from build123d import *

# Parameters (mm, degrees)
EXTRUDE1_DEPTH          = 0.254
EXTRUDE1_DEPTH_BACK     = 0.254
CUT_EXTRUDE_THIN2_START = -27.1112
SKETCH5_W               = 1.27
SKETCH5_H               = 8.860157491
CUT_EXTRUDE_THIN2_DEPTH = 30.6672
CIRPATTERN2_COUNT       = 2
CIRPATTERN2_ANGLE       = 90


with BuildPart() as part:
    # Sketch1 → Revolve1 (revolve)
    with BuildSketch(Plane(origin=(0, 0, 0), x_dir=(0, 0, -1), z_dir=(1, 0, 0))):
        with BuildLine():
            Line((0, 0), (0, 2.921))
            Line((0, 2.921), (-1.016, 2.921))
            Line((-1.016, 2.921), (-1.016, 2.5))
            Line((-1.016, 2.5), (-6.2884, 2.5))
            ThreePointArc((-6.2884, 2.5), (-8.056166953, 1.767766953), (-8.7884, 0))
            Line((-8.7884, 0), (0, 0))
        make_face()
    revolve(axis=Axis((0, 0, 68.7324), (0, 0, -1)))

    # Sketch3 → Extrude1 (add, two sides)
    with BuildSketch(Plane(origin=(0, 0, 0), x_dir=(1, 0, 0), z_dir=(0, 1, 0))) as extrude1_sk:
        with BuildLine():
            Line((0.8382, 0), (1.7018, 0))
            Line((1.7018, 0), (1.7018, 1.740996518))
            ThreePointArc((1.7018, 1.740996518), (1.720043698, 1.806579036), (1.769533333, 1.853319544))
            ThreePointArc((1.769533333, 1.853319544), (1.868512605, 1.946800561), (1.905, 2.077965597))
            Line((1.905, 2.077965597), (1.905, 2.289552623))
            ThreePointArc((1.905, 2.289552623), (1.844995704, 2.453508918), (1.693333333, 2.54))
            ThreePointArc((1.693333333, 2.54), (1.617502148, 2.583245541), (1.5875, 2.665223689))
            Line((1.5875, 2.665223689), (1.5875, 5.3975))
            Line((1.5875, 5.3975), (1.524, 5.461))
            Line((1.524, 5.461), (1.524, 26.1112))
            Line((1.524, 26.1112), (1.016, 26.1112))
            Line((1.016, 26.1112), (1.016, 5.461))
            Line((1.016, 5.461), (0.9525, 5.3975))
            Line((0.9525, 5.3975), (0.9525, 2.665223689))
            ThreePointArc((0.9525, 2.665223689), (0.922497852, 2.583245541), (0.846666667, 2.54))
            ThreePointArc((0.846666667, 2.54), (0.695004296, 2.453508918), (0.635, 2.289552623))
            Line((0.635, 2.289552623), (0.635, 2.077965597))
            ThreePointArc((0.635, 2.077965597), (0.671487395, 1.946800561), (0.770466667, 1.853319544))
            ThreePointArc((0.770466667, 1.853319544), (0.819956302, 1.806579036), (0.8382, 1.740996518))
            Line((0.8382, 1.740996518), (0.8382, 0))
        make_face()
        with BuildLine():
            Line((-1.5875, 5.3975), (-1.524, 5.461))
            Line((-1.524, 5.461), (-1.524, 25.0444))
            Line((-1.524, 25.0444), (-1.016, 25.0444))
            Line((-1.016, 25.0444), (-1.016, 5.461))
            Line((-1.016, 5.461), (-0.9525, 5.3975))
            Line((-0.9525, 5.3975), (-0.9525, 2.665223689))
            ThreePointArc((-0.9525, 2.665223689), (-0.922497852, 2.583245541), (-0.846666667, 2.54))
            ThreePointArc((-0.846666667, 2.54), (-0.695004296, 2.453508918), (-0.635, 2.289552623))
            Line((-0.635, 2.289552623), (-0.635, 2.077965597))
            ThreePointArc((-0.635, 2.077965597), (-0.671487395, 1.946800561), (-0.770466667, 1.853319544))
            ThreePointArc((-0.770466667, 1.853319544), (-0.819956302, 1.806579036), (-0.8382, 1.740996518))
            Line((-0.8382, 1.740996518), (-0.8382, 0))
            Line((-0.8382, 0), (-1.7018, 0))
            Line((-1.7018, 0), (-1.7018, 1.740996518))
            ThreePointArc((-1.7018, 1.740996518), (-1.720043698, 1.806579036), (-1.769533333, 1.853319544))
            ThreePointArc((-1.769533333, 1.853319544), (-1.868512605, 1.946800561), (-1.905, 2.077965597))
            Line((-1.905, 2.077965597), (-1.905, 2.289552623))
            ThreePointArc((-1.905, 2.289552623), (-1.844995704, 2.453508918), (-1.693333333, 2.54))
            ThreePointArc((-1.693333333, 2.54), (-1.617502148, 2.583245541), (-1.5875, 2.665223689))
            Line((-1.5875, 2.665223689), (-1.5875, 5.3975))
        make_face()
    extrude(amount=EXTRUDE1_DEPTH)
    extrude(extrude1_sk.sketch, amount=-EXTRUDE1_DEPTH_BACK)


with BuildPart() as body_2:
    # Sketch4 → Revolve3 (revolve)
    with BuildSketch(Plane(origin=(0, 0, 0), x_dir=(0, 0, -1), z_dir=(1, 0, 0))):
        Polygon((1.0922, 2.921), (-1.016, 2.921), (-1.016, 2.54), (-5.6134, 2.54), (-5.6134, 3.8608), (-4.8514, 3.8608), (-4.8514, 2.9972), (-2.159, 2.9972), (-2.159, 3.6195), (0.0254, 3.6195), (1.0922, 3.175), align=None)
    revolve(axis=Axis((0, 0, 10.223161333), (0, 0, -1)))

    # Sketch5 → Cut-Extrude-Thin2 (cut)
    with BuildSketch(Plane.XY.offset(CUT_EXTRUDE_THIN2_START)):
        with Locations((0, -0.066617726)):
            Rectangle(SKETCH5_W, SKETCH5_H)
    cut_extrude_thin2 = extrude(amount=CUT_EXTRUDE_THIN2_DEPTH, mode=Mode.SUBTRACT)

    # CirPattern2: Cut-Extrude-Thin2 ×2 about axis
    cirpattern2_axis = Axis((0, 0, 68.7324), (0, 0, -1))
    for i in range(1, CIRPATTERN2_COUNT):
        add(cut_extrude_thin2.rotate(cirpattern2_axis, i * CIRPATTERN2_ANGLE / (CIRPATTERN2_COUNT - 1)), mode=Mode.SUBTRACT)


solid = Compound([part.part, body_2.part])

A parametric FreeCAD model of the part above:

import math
import FreeCAD as App
import Part
import Sketcher

V = App.Vector
Q = App.Units.Quantity

doc = App.newDocument("Part")
body = doc.addObject("PartDesign::Body", "Body")

# Sketch on YZ plane
sketch1 = body.newObject("Sketcher::SketchObject", "Sketch")
sketch1.AttachmentSupport = (doc.getObject("YZ_Plane"), [""])
sketch1.MapMode = "FlatFace"
sketch1.addGeometry(Part.LineSegment(V(0, 0, 0), V(2.92, 0, 0)), False)
sketch1.addGeometry(Part.LineSegment(V(2.92, 0, 0), V(2.92, 1.02, 0)), False)
sketch1.addGeometry(Part.LineSegment(V(2.92, 1.02, 0), V(2.5, 1.02, 0)), False)
sketch1.addGeometry(Part.LineSegment(V(2.5, 1.02, 0), V(2.5, 6.29, 0)), False)
sketch1.addGeometry(Part.ArcOfCircle(Part.Circle(V(0, 6.29, 0), V(0, 0, 1), 2.5), math.radians(0), math.radians(90)), False)
sketch1.addGeometry(Part.LineSegment(V(0, 8.79, 0), V(0, 0, 0)), False)
sketch1.addConstraint(Sketcher.Constraint("Coincident", 0, 2, 1, 1))
sketch1.addConstraint(Sketcher.Constraint("Coincident", 1, 2, 2, 1))
sketch1.addConstraint(Sketcher.Constraint("Coincident", 2, 2, 3, 1))
sketch1.addConstraint(Sketcher.Constraint("Tangent", 3, 2, 4, 1))
sketch1.addConstraint(Sketcher.Constraint("Coincident", 4, 2, 5, 1))
sketch1.addConstraint(Sketcher.Constraint("Coincident", 5, 2, 0, 1))
sketch1.addConstraint(Sketcher.Constraint("Horizontal", 0))
sketch1.addConstraint(Sketcher.Constraint("Vertical", 1))
sketch1.addConstraint(Sketcher.Constraint("Horizontal", 2))
sketch1.addConstraint(Sketcher.Constraint("Vertical", 3))
sketch1.addConstraint(Sketcher.Constraint("Vertical", 5))
sketch1.addConstraint(Sketcher.Constraint("Coincident", 5, 2, -1, 1))
sketch1.addConstraint(Sketcher.Constraint("PointOnObject", 4, 3, -2))
sketch1.addConstraint(Sketcher.Constraint("DistanceY", 1, 1, 1, 2, Q("0.04 in")))
sketch1.addConstraint(Sketcher.Constraint("DistanceX", 0, 1, 0, 2, Q("0.115 in")))
sketch1.addConstraint(Sketcher.Constraint("DistanceY", 5, 2, 5, 1, Q("0.346 in")))
sketch1.addConstraint(Sketcher.Constraint("Radius", 4, 2.5))
revolution = body.newObject("PartDesign::Revolution", "Revolution")
revolution.Profile = sketch1
revolution.ReferenceAxis = (sketch1, ["V_Axis"])
revolution.Angle = 360

# Sketch on XZ plane
sketch2 = body.newObject("Sketcher::SketchObject", "Sketch001")
sketch2.AttachmentSupport = (doc.getObject("XZ_Plane"), [""])
sketch2.MapMode = "FlatFace"
sketch2.addGeometry(Part.LineSegment(V(0.84, 0, 0), V(1.7, 0, 0)), False)
sketch2.addGeometry(Part.LineSegment(V(1.7, 0, 0), V(1.7, -1.74, 0)), False)
sketch2.addGeometry(Part.ArcOfCircle(Part.Circle(V(1.83, -1.74, 0), V(0, 0, 1), 0.13), math.radians(-180), math.radians(-118)), False)
sketch2.addGeometry(Part.ArcOfCircle(Part.Circle(V(1.65, -2.08, 0), V(0, 0, 1), 0.25), math.radians(0), math.radians(62)), False)
sketch2.addGeometry(Part.LineSegment(V(1.91, -2.08, 0), V(1.91, -2.29, 0)), False)
sketch2.addGeometry(Part.ArcOfCircle(Part.Circle(V(1.65, -2.29, 0), V(0, 0, 1), 0.25), math.radians(-80), math.radians(0)), False)
sketch2.addGeometry(Part.ArcOfCircle(Part.Circle(V(1.71, -2.67, 0), V(0, 0, 1), 0.13), math.radians(100), math.radians(180)), False)
sketch2.addGeometry(Part.LineSegment(V(1.59, -2.67, 0), V(1.59, -5.4, 0)), False)
sketch2.addGeometry(Part.LineSegment(V(1.59, -5.4, 0), V(1.52, -5.46, 0)), False)
sketch2.addGeometry(Part.LineSegment(V(1.52, -5.46, 0), V(1.52, -26.11, 0)), False)
sketch2.addGeometry(Part.LineSegment(V(1.52, -26.11, 0), V(1.02, -26.11, 0)), False)
sketch2.addGeometry(Part.LineSegment(V(1.02, -26.11, 0), V(1.02, -5.46, 0)), False)
sketch2.addGeometry(Part.LineSegment(V(1.02, -5.46, 0), V(0.95, -5.4, 0)), False)
sketch2.addGeometry(Part.LineSegment(V(0.95, -5.4, 0), V(0.95, -2.67, 0)), False)
sketch2.addGeometry(Part.ArcOfCircle(Part.Circle(V(0.83, -2.67, 0), V(0, 0, 1), 0.13), math.radians(0), math.radians(80)), False)
sketch2.addGeometry(Part.ArcOfCircle(Part.Circle(V(0.89, -2.29, 0), V(0, 0, 1), 0.25), math.radians(180), math.radians(260)), False)
sketch2.addGeometry(Part.LineSegment(V(0.64, -2.29, 0), V(0.64, -2.08, 0)), False)
sketch2.addGeometry(Part.ArcOfCircle(Part.Circle(V(0.89, -2.08, 0), V(0, 0, 1), 0.25), math.radians(118), math.radians(180)), False)
sketch2.addGeometry(Part.ArcOfCircle(Part.Circle(V(0.71, -1.74, 0), V(0, 0, 1), 0.13), math.radians(-62), math.radians(0)), False)
sketch2.addGeometry(Part.LineSegment(V(0.84, -1.74, 0), V(0.84, 0, 0)), False)
sketch2.addGeometry(Part.LineSegment(V(-1.52, -5.46, 0), V(-1.59, -5.4, 0)), False)
sketch2.addGeometry(Part.LineSegment(V(-1.59, -5.4, 0), V(-1.59, -2.67, 0)), False)
sketch2.addGeometry(Part.ArcOfCircle(Part.Circle(V(-1.71, -2.67, 0), V(0, 0, 1), 0.13), math.radians(0), math.radians(80)), False)
sketch2.addGeometry(Part.ArcOfCircle(Part.Circle(V(-1.65, -2.29, 0), V(0, 0, 1), 0.25), math.radians(180), math.radians(260)), False)
sketch2.addGeometry(Part.LineSegment(V(-1.91, -2.29, 0), V(-1.91, -2.08, 0)), False)
sketch2.addGeometry(Part.ArcOfCircle(Part.Circle(V(-1.65, -2.08, 0), V(0, 0, 1), 0.25), math.radians(118), math.radians(180)), False)
sketch2.addGeometry(Part.ArcOfCircle(Part.Circle(V(-1.83, -1.74, 0), V(0, 0, 1), 0.13), math.radians(-62), math.radians(0)), False)
sketch2.addGeometry(Part.LineSegment(V(-1.7, -1.74, 0), V(-1.7, 0, 0)), False)
sketch2.addGeometry(Part.LineSegment(V(-1.7, 0, 0), V(-0.84, 0, 0)), False)
sketch2.addGeometry(Part.LineSegment(V(-0.84, 0, 0), V(-0.84, -1.74, 0)), False)
sketch2.addGeometry(Part.ArcOfCircle(Part.Circle(V(-0.71, -1.74, 0), V(0, 0, 1), 0.13), math.radians(-180), math.radians(-118)), False)
sketch2.addGeometry(Part.ArcOfCircle(Part.Circle(V(-0.89, -2.08, 0), V(0, 0, 1), 0.25), math.radians(0), math.radians(62)), False)
sketch2.addGeometry(Part.LineSegment(V(-0.64, -2.08, 0), V(-0.64, -2.29, 0)), False)
sketch2.addGeometry(Part.ArcOfCircle(Part.Circle(V(-0.89, -2.29, 0), V(0, 0, 1), 0.25), math.radians(-80), math.radians(0)), False)
sketch2.addGeometry(Part.ArcOfCircle(Part.Circle(V(-0.83, -2.67, 0), V(0, 0, 1), 0.13), math.radians(100), math.radians(180)), False)
sketch2.addGeometry(Part.LineSegment(V(-0.95, -2.67, 0), V(-0.95, -5.4, 0)), False)
sketch2.addGeometry(Part.LineSegment(V(-0.95, -5.4, 0), V(-1.02, -5.46, 0)), False)
sketch2.addGeometry(Part.LineSegment(V(-1.02, -5.46, 0), V(-1.02, -25.04, 0)), False)
sketch2.addGeometry(Part.LineSegment(V(-1.02, -25.04, 0), V(-1.52, -25.04, 0)), False)
sketch2.addGeometry(Part.LineSegment(V(-1.52, -25.04, 0), V(-1.52, -5.46, 0)), False)
sketch2.addConstraint(Sketcher.Constraint("Coincident", 0, 2, 1, 1))
sketch2.addConstraint(Sketcher.Constraint("Tangent", 1, 2, 2, 1))
sketch2.addConstraint(Sketcher.Constraint("Tangent", 2, 2, 3, 2))
sketch2.addConstraint(Sketcher.Constraint("Tangent", 3, 1, 4, 1))
sketch2.addConstraint(Sketcher.Constraint("Tangent", 4, 2, 5, 2))
sketch2.addConstraint(Sketcher.Constraint("Tangent", 5, 1, 6, 1))
sketch2.addConstraint(Sketcher.Constraint("Tangent", 6, 2, 7, 1))
sketch2.addConstraint(Sketcher.Constraint("Coincident", 7, 2, 8, 1))
sketch2.addConstraint(Sketcher.Constraint("Coincident", 8, 2, 9, 1))
sketch2.addConstraint(Sketcher.Constraint("Coincident", 9, 2, 10, 1))
sketch2.addConstraint(Sketcher.Constraint("Coincident", 10, 2, 11, 1))
sketch2.addConstraint(Sketcher.Constraint("Coincident", 11, 2, 12, 1))
sketch2.addConstraint(Sketcher.Constraint("Coincident", 12, 2, 13, 1))
sketch2.addConstraint(Sketcher.Constraint("Tangent", 13, 2, 14, 1))
sketch2.addConstraint(Sketcher.Constraint("Tangent", 14, 2, 15, 2))
sketch2.addConstraint(Sketcher.Constraint("Tangent", 15, 1, 16, 1))
sketch2.addConstraint(Sketcher.Constraint("Tangent", 16, 2, 17, 2))
sketch2.addConstraint(Sketcher.Constraint("Tangent", 17, 1, 18, 1))
sketch2.addConstraint(Sketcher.Constraint("Tangent", 18, 2, 19, 1))
sketch2.addConstraint(Sketcher.Constraint("Coincident", 19, 2, 0, 1))
sketch2.addConstraint(Sketcher.Constraint("Coincident", 20, 2, 21, 1))
sketch2.addConstraint(Sketcher.Constraint("Tangent", 21, 2, 22, 1))
sketch2.addConstraint(Sketcher.Constraint("Tangent", 22, 2, 23, 2))
sketch2.addConstraint(Sketcher.Constraint("Tangent", 23, 1, 24, 1))
sketch2.addConstraint(Sketcher.Constraint("Tangent", 24, 2, 25, 2))
sketch2.addConstraint(Sketcher.Constraint("Tangent", 25, 1, 26, 1))
sketch2.addConstraint(Sketcher.Constraint("Tangent", 26, 2, 27, 1))
sketch2.addConstraint(Sketcher.Constraint("Coincident", 27, 2, 28, 1))
sketch2.addConstraint(Sketcher.Constraint("Coincident", 28, 2, 29, 1))
sketch2.addConstraint(Sketcher.Constraint("Tangent", 29, 2, 30, 1))
sketch2.addConstraint(Sketcher.Constraint("Tangent", 30, 2, 31, 2))
sketch2.addConstraint(Sketcher.Constraint("Tangent", 31, 1, 32, 1))
sketch2.addConstraint(Sketcher.Constraint("Tangent", 32, 2, 33, 2))
sketch2.addConstraint(Sketcher.Constraint("Tangent", 33, 1, 34, 1))
sketch2.addConstraint(Sketcher.Constraint("Tangent", 34, 2, 35, 1))
sketch2.addConstraint(Sketcher.Constraint("Coincident", 35, 2, 36, 1))
sketch2.addConstraint(Sketcher.Constraint("Coincident", 36, 2, 37, 1))
sketch2.addConstraint(Sketcher.Constraint("Coincident", 37, 2, 38, 1))
sketch2.addConstraint(Sketcher.Constraint("Coincident", 38, 2, 39, 1))
sketch2.addConstraint(Sketcher.Constraint("Coincident", 39, 2, 20, 1))
sketch2.addConstraint(Sketcher.Constraint("Horizontal", 0))
sketch2.addConstraint(Sketcher.Constraint("Vertical", 1))
sketch2.addConstraint(Sketcher.Constraint("Vertical", 4))
sketch2.addConstraint(Sketcher.Constraint("Vertical", 7))
sketch2.addConstraint(Sketcher.Constraint("Vertical", 9))
sketch2.addConstraint(Sketcher.Constraint("Horizontal", 10))
sketch2.addConstraint(Sketcher.Constraint("Vertical", 11))
sketch2.addConstraint(Sketcher.Constraint("Vertical", 13))
sketch2.addConstraint(Sketcher.Constraint("Vertical", 16))
sketch2.addConstraint(Sketcher.Constraint("Vertical", 19))
sketch2.addConstraint(Sketcher.Constraint("Vertical", 21))
sketch2.addConstraint(Sketcher.Constraint("Vertical", 24))
sketch2.addConstraint(Sketcher.Constraint("Vertical", 27))
sketch2.addConstraint(Sketcher.Constraint("Horizontal", 28))
sketch2.addConstraint(Sketcher.Constraint("Vertical", 29))
sketch2.addConstraint(Sketcher.Constraint("Vertical", 32))
sketch2.addConstraint(Sketcher.Constraint("Vertical", 35))
sketch2.addConstraint(Sketcher.Constraint("Vertical", 37))
sketch2.addConstraint(Sketcher.Constraint("Horizontal", 38))
sketch2.addConstraint(Sketcher.Constraint("Vertical", 39))
sketch2.addConstraint(Sketcher.Constraint("Equal", 3, 5))
sketch2.addConstraint(Sketcher.Constraint("Equal", 2, 6))
sketch2.addConstraint(Sketcher.Constraint("Equal", 6, 14))
sketch2.addConstraint(Sketcher.Constraint("Equal", 5, 15))
sketch2.addConstraint(Sketcher.Constraint("Equal", 15, 17))
sketch2.addConstraint(Sketcher.Constraint("Equal", 14, 18))
sketch2.addConstraint(Sketcher.Constraint("Equal", 18, 22))
sketch2.addConstraint(Sketcher.Constraint("Equal", 17, 23))
sketch2.addConstraint(Sketcher.Constraint("Equal", 23, 25))
sketch2.addConstraint(Sketcher.Constraint("Equal", 22, 26))
sketch2.addConstraint(Sketcher.Constraint("Equal", 26, 30))
sketch2.addConstraint(Sketcher.Constraint("Equal", 25, 31))
sketch2.addConstraint(Sketcher.Constraint("Equal", 31, 33))
sketch2.addConstraint(Sketcher.Constraint("Equal", 30, 34))
sketch2.addConstraint(Sketcher.Constraint("Symmetric", 0, 2, 27, 2, -1, 1))
sketch2.addConstraint(Sketcher.Constraint("Symmetric", 6, 3, 22, 3, -2))
sketch2.addConstraint(Sketcher.Constraint("Symmetric", 3, 3, 25, 3, -2))
sketch2.addConstraint(Sketcher.Constraint("Symmetric", 18, 3, 30, 3, -2))
sketch2.addConstraint(Sketcher.Constraint("Symmetric", 15, 3, 33, 3, -2))
sketch2.addConstraint(Sketcher.Constraint("Symmetric", 12, 2, 35, 2, -2))
sketch2.addConstraint(Sketcher.Constraint("Symmetric", 11, 2, 36, 2, -2))
sketch2.addConstraint(Sketcher.Constraint("Symmetric", 8, 2, 39, 2, -2))
sketch2.addConstraint(Sketcher.Constraint("PointOnObject", 0, 2, -1))
sketch2.addConstraint(Sketcher.Constraint("Perpendicular", 8, 12))
sketch2.addConstraint(Sketcher.Constraint("Parallel", 12, 20))
sketch2.addConstraint(Sketcher.Constraint("Perpendicular", 20, 36))
sketch2.addConstraint(Sketcher.Constraint("Horizontal", 6, 3, 14, 3))
sketch2.addConstraint(Sketcher.Constraint("Horizontal", 5, 3, 15, 3))
sketch2.addConstraint(Sketcher.Constraint("Horizontal", 3, 3, 17, 3))
sketch2.addConstraint(Sketcher.Constraint("Horizontal", 2, 3, 18, 3))
sketch2.addConstraint(Sketcher.Constraint("Horizontal", 8, 2, 11, 2))
sketch2.addConstraint(Sketcher.Constraint("Horizontal", 7, 2, 12, 2))
sketch2.addConstraint(Sketcher.Constraint("Radius", 3, Q("0.01 in")))
sketch2.addConstraint(Sketcher.Constraint("Radius", 2, Q("0.005 in")))
sketch2.addConstraint(Sketcher.Constraint("DistanceX", 10, 2, 10, 1, Q("0.02 in")))
sketch2.addConstraint(Sketcher.Constraint("DistanceY", 5, 1, -1, 1, Q("0.1 in")))
sketch2.addConstraint(Sketcher.Constraint("DistanceX", 22, 3, 14, 3, Q("0.1 in")))
sketch2.addConstraint(Sketcher.Constraint("DistanceX", 0, 1, 0, 2, Q("0.034 in")))
sketch2.addConstraint(Sketcher.Constraint("DistanceY", 9, 2, 9, 1, Q("0.813 in")))
sketch2.addConstraint(Sketcher.Constraint("DistanceY", 37, 2, 37, 1, Q("0.771 in")))
sketch2.addConstraint(Sketcher.Constraint("DistanceX", 15, 3, 5, 3, Q("0.03 in")))
sketch2.addConstraint(Sketcher.Constraint("DistanceX", 14, 3, 7, 2, Q("0.03 in")))
sketch2.addConstraint(Sketcher.Constraint("DistanceY", 8, 2, -1, 1, Q("0.215 in")))
sketch2.addConstraint(Sketcher.Constraint("DistanceY", 1, 2, 1, 1, 1.740997))
pad1 = body.newObject("PartDesign::Pad", "Pad")
pad1.Profile = sketch2
pad1.Type = "TwoLengths"
pad1.Length = Q("0.01 in")
pad1.Length2 = Q("0.01 in")
pad1.Reversed = True
body2 = doc.addObject("PartDesign::Body", "Body001")

# Sketch on YZ plane
sketch3 = body2.newObject("Sketcher::SketchObject", "Sketch002")
sketch3.AttachmentSupport = (doc.getObject("YZ_Plane001"), [""])
sketch3.MapMode = "FlatFace"
sketch3.addGeometry(Part.LineSegment(V(2.92, 1.02, 0), V(2.92, -1.09, 0)), False)
sketch3.addGeometry(Part.LineSegment(V(2.92, -1.09, 0), V(3.17, -1.09, 0)), False)
sketch3.addGeometry(Part.LineSegment(V(3.17, -1.09, 0), V(3.62, -0.03, 0)), False)
sketch3.addGeometry(Part.LineSegment(V(3.62, -0.03, 0), V(3.62, 2.16, 0)), False)
sketch3.addGeometry(Part.LineSegment(V(3.62, 2.16, 0), V(3, 2.16, 0)), False)
sketch3.addGeometry(Part.LineSegment(V(3, 2.16, 0), V(3, 4.85, 0)), False)
sketch3.addGeometry(Part.LineSegment(V(3, 4.85, 0), V(3.86, 4.85, 0)), False)
sketch3.addGeometry(Part.LineSegment(V(3.86, 4.85, 0), V(3.86, 5.61, 0)), False)
sketch3.addGeometry(Part.LineSegment(V(3.86, 5.61, 0), V(2.54, 5.61, 0)), False)
sketch3.addGeometry(Part.LineSegment(V(2.54, 5.61, 0), V(2.54, 1.02, 0)), False)
sketch3.addGeometry(Part.LineSegment(V(2.54, 1.02, 0), V(2.92, 1.02, 0)), False)
sketch3.addConstraint(Sketcher.Constraint("Coincident", 0, 2, 1, 1))
sketch3.addConstraint(Sketcher.Constraint("Coincident", 1, 2, 2, 1))
sketch3.addConstraint(Sketcher.Constraint("Coincident", 2, 2, 3, 1))
sketch3.addConstraint(Sketcher.Constraint("Coincident", 3, 2, 4, 1))
sketch3.addConstraint(Sketcher.Constraint("Coincident", 4, 2, 5, 1))
sketch3.addConstraint(Sketcher.Constraint("Coincident", 5, 2, 6, 1))
sketch3.addConstraint(Sketcher.Constraint("Coincident", 6, 2, 7, 1))
sketch3.addConstraint(Sketcher.Constraint("Coincident", 7, 2, 8, 1))
sketch3.addConstraint(Sketcher.Constraint("Coincident", 8, 2, 9, 1))
sketch3.addConstraint(Sketcher.Constraint("Coincident", 9, 2, 10, 1))
sketch3.addConstraint(Sketcher.Constraint("Coincident", 10, 2, 0, 1))
sketch3.addConstraint(Sketcher.Constraint("Vertical", 0))
sketch3.addConstraint(Sketcher.Constraint("Horizontal", 1))
sketch3.addConstraint(Sketcher.Constraint("Vertical", 3))
sketch3.addConstraint(Sketcher.Constraint("Horizontal", 4))
sketch3.addConstraint(Sketcher.Constraint("Vertical", 5))
sketch3.addConstraint(Sketcher.Constraint("Horizontal", 6))
sketch3.addConstraint(Sketcher.Constraint("Vertical", 7))
sketch3.addConstraint(Sketcher.Constraint("Horizontal", 8))
sketch3.addConstraint(Sketcher.Constraint("Vertical", 9))
sketch3.addConstraint(Sketcher.Constraint("Horizontal", 10))
sketch3.addConstraint(Sketcher.Constraint("DistanceX", 1, 1, 1, 2, Q("0.01 in")))
sketch3.addConstraint(Sketcher.Constraint("DistanceY", 7, 1, 7, 2, Q("0.03 in")))
sketch3.addConstraint(Sketcher.Constraint("DistanceX", -1, 1, 8, 2, Q("0.1 in")))
sketch3.addConstraint(Sketcher.Constraint("DistanceX", 6, 1, 6, 2, Q("0.034 in")))
sketch3.addConstraint(Sketcher.Constraint("DistanceX", 8, 2, 8, 1, Q("0.052 in")))
sketch3.addConstraint(Sketcher.Constraint("DistanceX", 10, 1, 10, 2, Q("0.015 in")))
sketch3.addConstraint(Sketcher.Constraint("DistanceY", 0, 2, 0, 1, Q("0.083 in")))
sketch3.addConstraint(Sketcher.Constraint("DistanceY", 3, 1, 3, 2, Q("0.086 in")))
sketch3.addConstraint(Sketcher.Constraint("DistanceY", 5, 1, 5, 2, Q("0.106 in")))
sketch3.addConstraint(Sketcher.Constraint("DistanceY", 9, 2, 9, 1, Q("0.181 in")))
sketch3.addConstraint(Sketcher.Constraint("DistanceY", -1, 1, 9, 2, Q("0.04 in")))
sketch3.addConstraint(Sketcher.Constraint("DistanceX", 4, 2, 4, 1, Q("0.0245 in")))
revolution2 = body2.newObject("PartDesign::Revolution", "Revolution001")
revolution2.Profile = sketch3
revolution2.ReferenceAxis = (sketch3, ["V_Axis"])
revolution2.Angle = 360

# Sketch on XY plane
sketch4 = body2.newObject("Sketcher::SketchObject", "Sketch003")
sketch4.AttachmentSupport = (doc.getObject("XY_Plane001"), [""])
sketch4.MapMode = "FlatFace"
sketch4.AttachmentOffset = App.Placement(V(0, 0, -27.1112), App.Rotation())
sketch4.addGeometry(Part.LineSegment(V(-0.6, 4.4, 0), V(-0.6, -4.5, 0)), False)
sketch4.addGeometry(Part.LineSegment(V(-0.6, -4.5, 0), V(0.6, -4.5, 0)), False)
sketch4.addGeometry(Part.LineSegment(V(0.6, -4.5, 0), V(0.6, 4.4, 0)), False)
sketch4.addGeometry(Part.LineSegment(V(0.6, 4.4, 0), V(-0.6, 4.4, 0)), False)
sketch4.addConstraint(Sketcher.Constraint("Coincident", 0, 2, 1, 1))
sketch4.addConstraint(Sketcher.Constraint("Coincident", 1, 2, 2, 1))
sketch4.addConstraint(Sketcher.Constraint("Coincident", 2, 2, 3, 1))
sketch4.addConstraint(Sketcher.Constraint("Coincident", 3, 2, 0, 1))
sketch4.addConstraint(Sketcher.Constraint("Vertical", 0))
sketch4.addConstraint(Sketcher.Constraint("Horizontal", 1))
sketch4.addConstraint(Sketcher.Constraint("Vertical", 2))
sketch4.addConstraint(Sketcher.Constraint("Horizontal", 3))
sketch4.addConstraint(Sketcher.Constraint("DistanceX", 1, 1, 1, 2, Q("0.05 in")))
sketch4.addConstraint(Sketcher.Constraint("DistanceX", 0, 2, -1, 1, Q("0.025 in")))
sketch4.addConstraint(Sketcher.Constraint("DistanceY", 0, 2, 0, 1, 8.860157))
sketch4.addConstraint(Sketcher.Constraint("DistanceY", -1, 1, 2, 2, 4.363461))
pocket1 = body2.newObject("PartDesign::Pocket", "Pocket")
pocket1.Profile = sketch4
pocket1.Length = 30.6672
pocket1.Reversed = True
doc.recompute()

polarpattern = body2.newObject("PartDesign::PolarPattern", "PolarPattern")
polarpattern.Originals = [pocket1]
polarpattern.Axis = (doc.getObject("Z_Axis001"), [""])
polarpattern.Angle = 90
polarpattern.Occurrences = 2
polarpattern.Reversed = True
body2.Tip = polarpattern

doc.recompute()
